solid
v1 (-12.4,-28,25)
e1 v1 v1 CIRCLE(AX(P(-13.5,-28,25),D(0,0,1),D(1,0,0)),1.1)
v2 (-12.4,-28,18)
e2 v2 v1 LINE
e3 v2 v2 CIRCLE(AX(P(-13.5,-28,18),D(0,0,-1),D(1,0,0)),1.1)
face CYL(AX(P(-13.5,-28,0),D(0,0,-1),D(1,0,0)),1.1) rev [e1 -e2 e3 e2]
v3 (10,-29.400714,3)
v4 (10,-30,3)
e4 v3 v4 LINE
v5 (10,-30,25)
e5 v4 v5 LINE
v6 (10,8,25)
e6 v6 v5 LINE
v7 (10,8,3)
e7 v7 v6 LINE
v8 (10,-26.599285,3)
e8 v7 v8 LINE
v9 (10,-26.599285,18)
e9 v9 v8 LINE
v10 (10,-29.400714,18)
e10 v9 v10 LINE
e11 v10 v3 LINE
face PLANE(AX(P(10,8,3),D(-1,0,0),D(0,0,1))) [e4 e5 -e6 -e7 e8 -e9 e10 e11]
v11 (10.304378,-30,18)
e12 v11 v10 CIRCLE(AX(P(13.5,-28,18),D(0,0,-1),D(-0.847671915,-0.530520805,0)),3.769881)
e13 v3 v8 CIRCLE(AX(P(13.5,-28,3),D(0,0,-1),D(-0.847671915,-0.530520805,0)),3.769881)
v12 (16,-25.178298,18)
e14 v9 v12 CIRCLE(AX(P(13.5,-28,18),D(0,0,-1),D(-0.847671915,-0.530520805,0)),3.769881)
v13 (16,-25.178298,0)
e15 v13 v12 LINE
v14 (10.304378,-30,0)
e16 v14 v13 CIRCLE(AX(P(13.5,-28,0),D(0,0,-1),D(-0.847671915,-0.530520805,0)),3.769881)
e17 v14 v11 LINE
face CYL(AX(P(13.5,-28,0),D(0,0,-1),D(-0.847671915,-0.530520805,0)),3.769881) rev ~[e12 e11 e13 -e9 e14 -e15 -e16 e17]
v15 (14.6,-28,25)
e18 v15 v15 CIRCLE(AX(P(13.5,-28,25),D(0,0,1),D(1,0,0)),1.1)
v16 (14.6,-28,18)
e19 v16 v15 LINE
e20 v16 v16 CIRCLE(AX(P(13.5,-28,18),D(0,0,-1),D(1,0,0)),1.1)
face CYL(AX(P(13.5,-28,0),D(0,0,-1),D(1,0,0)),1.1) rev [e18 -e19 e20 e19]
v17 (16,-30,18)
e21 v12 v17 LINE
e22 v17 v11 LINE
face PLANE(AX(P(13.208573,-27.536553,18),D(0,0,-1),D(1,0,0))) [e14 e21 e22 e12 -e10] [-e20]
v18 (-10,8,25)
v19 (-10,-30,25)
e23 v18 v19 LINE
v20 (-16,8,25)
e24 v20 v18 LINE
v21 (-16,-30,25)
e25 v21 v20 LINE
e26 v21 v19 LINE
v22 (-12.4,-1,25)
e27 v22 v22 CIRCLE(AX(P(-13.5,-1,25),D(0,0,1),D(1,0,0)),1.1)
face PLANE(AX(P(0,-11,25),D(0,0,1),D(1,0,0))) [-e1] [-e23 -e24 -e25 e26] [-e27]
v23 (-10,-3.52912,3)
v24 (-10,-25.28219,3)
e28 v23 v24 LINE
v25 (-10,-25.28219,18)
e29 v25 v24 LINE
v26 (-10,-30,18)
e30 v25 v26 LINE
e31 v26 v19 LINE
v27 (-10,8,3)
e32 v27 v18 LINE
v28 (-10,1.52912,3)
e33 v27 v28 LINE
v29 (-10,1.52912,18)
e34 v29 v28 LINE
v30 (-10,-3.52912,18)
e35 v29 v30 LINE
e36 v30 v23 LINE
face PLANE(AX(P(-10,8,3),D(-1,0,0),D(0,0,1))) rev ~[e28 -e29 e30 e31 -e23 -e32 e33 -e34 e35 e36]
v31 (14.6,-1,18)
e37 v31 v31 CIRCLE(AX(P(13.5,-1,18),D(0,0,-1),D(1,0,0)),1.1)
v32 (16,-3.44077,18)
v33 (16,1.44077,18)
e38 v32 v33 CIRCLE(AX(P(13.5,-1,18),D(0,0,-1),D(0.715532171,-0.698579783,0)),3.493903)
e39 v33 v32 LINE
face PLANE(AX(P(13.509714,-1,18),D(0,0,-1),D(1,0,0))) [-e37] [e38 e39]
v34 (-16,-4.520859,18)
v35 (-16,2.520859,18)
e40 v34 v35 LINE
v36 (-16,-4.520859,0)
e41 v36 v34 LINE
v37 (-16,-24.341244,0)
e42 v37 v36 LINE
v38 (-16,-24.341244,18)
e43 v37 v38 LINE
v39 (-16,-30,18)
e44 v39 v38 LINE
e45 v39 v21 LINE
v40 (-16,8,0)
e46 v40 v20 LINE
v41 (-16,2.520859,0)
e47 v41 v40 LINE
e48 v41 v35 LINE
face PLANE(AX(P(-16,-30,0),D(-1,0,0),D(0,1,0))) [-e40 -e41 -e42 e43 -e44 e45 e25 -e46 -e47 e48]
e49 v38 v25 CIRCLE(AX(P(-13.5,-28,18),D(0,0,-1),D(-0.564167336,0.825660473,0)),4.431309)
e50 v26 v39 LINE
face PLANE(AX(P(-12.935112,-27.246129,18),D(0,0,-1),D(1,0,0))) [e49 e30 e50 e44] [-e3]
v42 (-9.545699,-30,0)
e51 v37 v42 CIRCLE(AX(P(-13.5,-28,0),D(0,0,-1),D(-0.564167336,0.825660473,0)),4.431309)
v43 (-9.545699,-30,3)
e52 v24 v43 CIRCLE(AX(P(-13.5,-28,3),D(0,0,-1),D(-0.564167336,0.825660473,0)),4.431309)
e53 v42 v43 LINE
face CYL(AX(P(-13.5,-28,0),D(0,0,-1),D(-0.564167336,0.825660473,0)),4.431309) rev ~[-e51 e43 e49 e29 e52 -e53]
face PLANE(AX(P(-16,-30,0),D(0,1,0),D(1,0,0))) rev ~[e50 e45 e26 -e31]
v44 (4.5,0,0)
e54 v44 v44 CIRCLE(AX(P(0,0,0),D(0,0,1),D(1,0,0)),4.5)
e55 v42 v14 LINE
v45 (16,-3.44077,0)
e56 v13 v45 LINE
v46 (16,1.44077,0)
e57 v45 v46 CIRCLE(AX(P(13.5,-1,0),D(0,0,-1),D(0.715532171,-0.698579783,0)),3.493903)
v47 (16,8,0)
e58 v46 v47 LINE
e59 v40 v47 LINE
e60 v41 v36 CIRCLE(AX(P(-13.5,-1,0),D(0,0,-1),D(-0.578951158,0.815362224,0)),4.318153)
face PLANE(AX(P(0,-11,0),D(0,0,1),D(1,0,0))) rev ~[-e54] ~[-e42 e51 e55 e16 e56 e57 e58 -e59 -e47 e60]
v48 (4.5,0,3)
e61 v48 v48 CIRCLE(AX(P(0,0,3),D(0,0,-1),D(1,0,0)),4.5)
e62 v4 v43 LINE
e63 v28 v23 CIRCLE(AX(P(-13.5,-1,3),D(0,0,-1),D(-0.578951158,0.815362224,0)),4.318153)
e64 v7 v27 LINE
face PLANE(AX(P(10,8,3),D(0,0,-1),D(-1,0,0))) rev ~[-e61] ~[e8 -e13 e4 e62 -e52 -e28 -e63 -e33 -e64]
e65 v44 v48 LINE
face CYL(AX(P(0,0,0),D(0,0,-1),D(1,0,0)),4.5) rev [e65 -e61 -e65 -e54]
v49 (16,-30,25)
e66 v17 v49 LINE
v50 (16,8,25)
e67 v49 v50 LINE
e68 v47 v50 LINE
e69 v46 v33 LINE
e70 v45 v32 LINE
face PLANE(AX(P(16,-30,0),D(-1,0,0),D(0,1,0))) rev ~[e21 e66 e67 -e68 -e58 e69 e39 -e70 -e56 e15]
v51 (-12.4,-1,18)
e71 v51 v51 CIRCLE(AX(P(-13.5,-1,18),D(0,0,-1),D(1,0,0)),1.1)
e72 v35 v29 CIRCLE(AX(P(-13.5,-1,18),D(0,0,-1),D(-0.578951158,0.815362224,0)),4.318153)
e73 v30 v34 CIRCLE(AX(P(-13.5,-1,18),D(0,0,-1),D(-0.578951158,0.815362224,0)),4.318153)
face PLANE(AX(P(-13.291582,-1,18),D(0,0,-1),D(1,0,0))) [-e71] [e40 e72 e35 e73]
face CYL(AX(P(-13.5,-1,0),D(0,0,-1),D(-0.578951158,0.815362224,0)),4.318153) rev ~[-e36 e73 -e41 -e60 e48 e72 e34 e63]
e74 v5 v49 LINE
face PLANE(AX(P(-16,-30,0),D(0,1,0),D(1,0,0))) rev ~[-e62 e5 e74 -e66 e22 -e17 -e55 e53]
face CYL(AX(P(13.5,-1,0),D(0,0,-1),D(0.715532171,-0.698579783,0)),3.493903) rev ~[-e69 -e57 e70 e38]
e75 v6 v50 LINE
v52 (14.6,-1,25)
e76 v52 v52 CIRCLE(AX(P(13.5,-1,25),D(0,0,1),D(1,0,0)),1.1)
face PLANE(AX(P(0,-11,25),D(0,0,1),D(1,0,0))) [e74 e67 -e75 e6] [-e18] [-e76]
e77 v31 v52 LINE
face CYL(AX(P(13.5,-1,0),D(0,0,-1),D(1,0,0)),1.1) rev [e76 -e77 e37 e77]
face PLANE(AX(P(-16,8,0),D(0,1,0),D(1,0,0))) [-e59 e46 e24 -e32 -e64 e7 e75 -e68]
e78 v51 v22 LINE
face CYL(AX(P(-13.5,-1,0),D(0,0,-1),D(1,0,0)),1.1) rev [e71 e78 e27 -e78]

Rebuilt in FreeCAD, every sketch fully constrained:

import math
import FreeCAD as App
import Part
import Sketcher

V = App.Vector

doc = App.newDocument("Part")
params = doc.addObject("Spreadsheet::Sheet", "Params")
for row, (alias, value) in enumerate([
    ("sketch1_diameter", "9 mm"),
    ("sketch1_diameter2", "2.2 mm"),
    ("sketch1_width", "32 mm"),
    ("sketch1_height", "38 mm"),
    ("pad1_length", "25 mm"),
    ("sketch2_width", "20 mm"),
    ("sketch2_height", "22 mm"),
    ("pocket2_length", "18 mm"),
], start=1):
    params.set(f"A{row}", alias)
    params.set(f"B{row}", "=" + value)
    params.setAlias(f"B{row}", alias)

body = doc.addObject("PartDesign::Body", "Body")

sketch1 = doc.addObject("Sketcher::SketchObject", "Sketch")
body.addObject(sketch1)
sketch1.AttachmentSupport = (doc.XY_Plane, [""])
sketch1.MapMode = "FlatFace"
sketch1.addGeometry(Part.LineSegment(V(-16, 8, 0), V(-16, -30, 0)), False)
sketch1.addGeometry(Part.LineSegment(V(-16, -30, 0), V(16, -30, 0)), False)
sketch1.addGeometry(Part.LineSegment(V(16, -30, 0), V(16, 8, 0)), False)
sketch1.addGeometry(Part.LineSegment(V(16, 8, 0), V(-16, 8, 0)), False)
sketch1.addGeometry(Part.Circle(V(-13.5, -28, 0), V(0, 0, 1), 1.1), False)
sketch1.addGeometry(Part.Circle(V(13.5, -28, 0), V(0, 0, 1), 1.1), False)
sketch1.addGeometry(Part.Circle(V(-13.5, -1, 0), V(0, 0, 1), 1.1), False)
sketch1.addGeometry(Part.Circle(V(0, 0, 0), V(0, 0, 1), 4.5), False)
sketch1.addGeometry(Part.Circle(V(13.5, -1, 0), V(0, 0, 1), 1.1), False)
sketch1.addConstraint(Sketcher.Constraint("Coincident", 0, 2, 1, 1))
sketch1.addConstraint(Sketcher.Constraint("Coincident", 1, 2, 2, 1))
sketch1.addConstraint(Sketcher.Constraint("Coincident", 2, 2, 3, 1))
sketch1.addConstraint(Sketcher.Constraint("Coincident", 3, 2, 0, 1))
sketch1.addConstraint(Sketcher.Constraint("Vertical", 0))
sketch1.addConstraint(Sketcher.Constraint("Horizontal", 1))
sketch1.addConstraint(Sketcher.Constraint("Vertical", 2))
sketch1.addConstraint(Sketcher.Constraint("Horizontal", 3))
sketch1.addConstraint(Sketcher.Constraint("Coincident", 7, 3, -1, 1))
sketch1.addConstraint(Sketcher.Constraint("Equal", 4, 5))
sketch1.addConstraint(Sketcher.Constraint("Equal", 5, 6))
sketch1.addConstraint(Sketcher.Constraint("Equal", 6, 8))
sketch1.addConstraint(Sketcher.Constraint("Symmetric", 4, 3, 5, 3, -2))
sketch1.addConstraint(Sketcher.Constraint("Symmetric", 6, 3, 8, 3, -2))
sketch1.addConstraint(Sketcher.Constraint("Vertical", 4, 3, 6, 3))
sketch1.addConstraint(Sketcher.Constraint("Diameter", 7, 9.0))
sketch1.addConstraint(Sketcher.Constraint("Diameter", 4, 2.2))
sketch1.addConstraint(Sketcher.Constraint("DistanceX", 1, 1, 1, 2, 32.0))
sketch1.addConstraint(Sketcher.Constraint("DistanceY", 0, 2, 0, 1, 38.0))
sketch1.addConstraint(Sketcher.Constraint("DistanceY", 4, 3, -1, 1, 28.0))
sketch1.addConstraint(Sketcher.Constraint("DistanceY", 6, 3, -1, 1, 1.0))
sketch1.addConstraint(Sketcher.Constraint("DistanceX", 0, 2, -1, 1, 16.0))
sketch1.addConstraint(Sketcher.Constraint("DistanceY", 0, 2, -1, 1, 30.0))
sketch1.addConstraint(Sketcher.Constraint("DistanceX", 4, 3, 5, 3, 27.0))
sketch1.setExpression("Constraints[15]", "Params.sketch1_diameter")
sketch1.setExpression("Constraints[16]", "Params.sketch1_diameter2")
sketch1.setExpression("Constraints[17]", "Params.sketch1_width")
sketch1.setExpression("Constraints[18]", "Params.sketch1_height")
pad1 = doc.addObject("PartDesign::Pad", "Pad")
body.addObject(pad1)
pad1.Profile = sketch1
pad1.setExpression("Length", "Params.pad1_length")

sketch2 = doc.addObject("Sketcher::SketchObject", "Sketch001")
body.addObject(sketch2)
sketch2.AttachmentSupport = (doc.XZ_Plane, [""])
sketch2.MapMode = "FlatFace"
sketch2.AttachmentOffset = App.Placement(V(0, 0, -8), App.Rotation())
sketch2.addGeometry(Part.LineSegment(V(10, 25, 0), V(10, 3, 0)), False)
sketch2.addGeometry(Part.LineSegment(V(10, 3, 0), V(-10, 3, 0)), False)
sketch2.addGeometry(Part.LineSegment(V(-10, 3, 0), V(-10, 25, 0)), False)
sketch2.addGeometry(Part.LineSegment(V(-10, 25, 0), V(10, 25, 0)), False)
sketch2.addConstraint(Sketcher.Constraint("Coincident", 0, 2, 1, 1))
sketch2.addConstraint(Sketcher.Constraint("Coincident", 1, 2, 2, 1))
sketch2.addConstraint(Sketcher.Constraint("Coincident", 2, 2, 3, 1))
sketch2.addConstraint(Sketcher.Constraint("Coincident", 3, 2, 0, 1))
sketch2.addConstraint(Sketcher.Constraint("Vertical", 0))
sketch2.addConstraint(Sketcher.Constraint("Horizontal", 1))
sketch2.addConstraint(Sketcher.Constraint("Vertical", 2))
sketch2.addConstraint(Sketcher.Constraint("Horizontal", 3))
sketch2.addConstraint(Sketcher.Constraint("DistanceX", 1, 2, 1, 1, 20.0))
sketch2.addConstraint(Sketcher.Constraint("DistanceY", 0, 2, 0, 1, 22.0))
sketch2.addConstraint(Sketcher.Constraint("DistanceX", -1, 1, 0, 2, 10.0))
sketch2.addConstraint(Sketcher.Constraint("DistanceY", -1, 1, 0, 2, 3.0))
sketch2.setExpression("Constraints[8]", "Params.sketch2_width")
sketch2.setExpression("Constraints[9]", "Params.sketch2_height")
pocket1 = doc.addObject("PartDesign::Pocket", "Pocket")
body.addObject(pocket1)
pocket1.Profile = sketch2
pocket1.Type = "ThroughAll"
pocket1.Reversed = True

sketch3 = doc.addObject("Sketcher::SketchObject", "Sketch002")
body.addObject(sketch3)
sketch3.AttachmentSupport = (doc.XY_Plane, [""])
sketch3.MapMode = "FlatFace"
sketch3.addGeometry(Part.LineSegment(V(16, 1.4, 0), V(16, -3.4, 0)), False)
sketch3.addGeometry(Part.ArcOfCircle(Part.Circle(V(13.5, -1, 0), V(0, 0, 1), 3.5), math.radians(44), math.radians(316)), False)
sketch3.addGeometry(Part.ArcOfCircle(Part.Circle(V(-13.5, -1, 0), V(0, 0, 1), 4.3), math.radians(-125), math.radians(125)), False)
sketch3.addGeometry(Part.LineSegment(V(-16, -4.5, 0), V(-16, 2.5, 0)), False)
sketch3.addGeometry(Part.ArcOfCircle(Part.Circle(V(13.5, -28, 0), V(0, 0, 1), 3.8), math.radians(48), math.radians(212)), False)
sketch3.addGeometry(Part.LineSegment(V(16, -25.2, 0), V(16, -30, 0)), False)
sketch3.addGeometry(Part.LineSegment(V(16, -30, 0), V(10.3, -30, 0)), False)
sketch3.addGeometry(Part.LineSegment(V(-16, -30, 0), V(-16, -24.3, 0)), False)
sketch3.addGeometry(Part.ArcOfCircle(Part.Circle(V(-13.5, -28, 0), V(0, 0, 1), 4.4), math.radians(-27), math.radians(124)), False)
sketch3.addGeometry(Part.LineSegment(V(-9.5, -30, 0), V(-16, -30, 0)), False)
sketch3.addConstraint(Sketcher.Constraint("Coincident", 0, 1, 1, 1))
sketch3.addConstraint(Sketcher.Constraint("Coincident", 1, 2, 0, 2))
sketch3.addConstraint(Sketcher.Constraint("Coincident", 2, 1, 3, 1))
sketch3.addConstraint(Sketcher.Constraint("Coincident", 3, 2, 2, 2))
sketch3.addConstraint(Sketcher.Constraint("Coincident", 4, 1, 5, 1))
sketch3.addConstraint(Sketcher.Constraint("Coincident", 5, 2, 6, 1))
sketch3.addConstraint(Sketcher.Constraint("Coincident", 6, 2, 4, 2))
sketch3.addConstraint(Sketcher.Constraint("Coincident", 7, 2, 8, 2))
sketch3.addConstraint(Sketcher.Constraint("Coincident", 8, 1, 9, 1))
sketch3.addConstraint(Sketcher.Constraint("Coincident", 9, 2, 7, 1))
sketch3.addConstraint(Sketcher.Constraint("Vertical", 0))
sketch3.addConstraint(Sketcher.Constraint("Vertical", 3))
sketch3.addConstraint(Sketcher.Constraint("Vertical", 5))
sketch3.addConstraint(Sketcher.Constraint("Horizontal", 6))
sketch3.addConstraint(Sketcher.Constraint("Vertical", 7))
sketch3.addConstraint(Sketcher.Constraint("Horizontal", 9))
sketch3.addConstraint(Sketcher.Constraint("Symmetric", 1, 3, 2, 3, -2))
sketch3.addConstraint(Sketcher.Constraint("Symmetric", 4, 3, 8, 3, -2))
sketch3.addConstraint(Sketcher.Constraint("Symmetric", 5, 2, 9, 2, -2))
sketch3.addConstraint(Sketcher.Constraint("Vertical", 1, 3, 4, 3))
sketch3.addConstraint(Sketcher.Constraint("Vertical", 1, 2, 4, 1))
sketch3.addConstraint(Sketcher.Constraint("Vertical", 3, 2, 7, 2))
sketch3.addConstraint(Sketcher.Constraint("DistanceY", 1, 3, -1, 1, 1.0))
sketch3.addConstraint(Sketcher.Constraint("DistanceY", 4, 3, -1, 1, 28.0))
sketch3.addConstraint(Sketcher.Constraint("DistanceX", -1, 1, 0, 1, 16.0))
sketch3.addConstraint(Sketcher.Constraint("DistanceY", 5, 2, -1, 1, 30.0))
sketch3.addConstraint(Sketcher.Constraint("DistanceX", 2, 3, 1, 3, 27.0))
sketch3.addConstraint(Sketcher.Constraint("Radius", 4, 3.769881))
sketch3.addConstraint(Sketcher.Constraint("Radius", 8, 4.431309))
sketch3.addConstraint(Sketcher.Constraint("Radius", 1, 3.493903))
sketch3.addConstraint(Sketcher.Constraint("Radius", 2, 4.318153))
pocket2 = doc.addObject("PartDesign::Pocket", "Pocket001")
body.addObject(pocket2)
pocket2.Profile = sketch3
pocket2.setExpression("Length", "Params.pocket2_length")
pocket2.Reversed = True

doc.recompute()
